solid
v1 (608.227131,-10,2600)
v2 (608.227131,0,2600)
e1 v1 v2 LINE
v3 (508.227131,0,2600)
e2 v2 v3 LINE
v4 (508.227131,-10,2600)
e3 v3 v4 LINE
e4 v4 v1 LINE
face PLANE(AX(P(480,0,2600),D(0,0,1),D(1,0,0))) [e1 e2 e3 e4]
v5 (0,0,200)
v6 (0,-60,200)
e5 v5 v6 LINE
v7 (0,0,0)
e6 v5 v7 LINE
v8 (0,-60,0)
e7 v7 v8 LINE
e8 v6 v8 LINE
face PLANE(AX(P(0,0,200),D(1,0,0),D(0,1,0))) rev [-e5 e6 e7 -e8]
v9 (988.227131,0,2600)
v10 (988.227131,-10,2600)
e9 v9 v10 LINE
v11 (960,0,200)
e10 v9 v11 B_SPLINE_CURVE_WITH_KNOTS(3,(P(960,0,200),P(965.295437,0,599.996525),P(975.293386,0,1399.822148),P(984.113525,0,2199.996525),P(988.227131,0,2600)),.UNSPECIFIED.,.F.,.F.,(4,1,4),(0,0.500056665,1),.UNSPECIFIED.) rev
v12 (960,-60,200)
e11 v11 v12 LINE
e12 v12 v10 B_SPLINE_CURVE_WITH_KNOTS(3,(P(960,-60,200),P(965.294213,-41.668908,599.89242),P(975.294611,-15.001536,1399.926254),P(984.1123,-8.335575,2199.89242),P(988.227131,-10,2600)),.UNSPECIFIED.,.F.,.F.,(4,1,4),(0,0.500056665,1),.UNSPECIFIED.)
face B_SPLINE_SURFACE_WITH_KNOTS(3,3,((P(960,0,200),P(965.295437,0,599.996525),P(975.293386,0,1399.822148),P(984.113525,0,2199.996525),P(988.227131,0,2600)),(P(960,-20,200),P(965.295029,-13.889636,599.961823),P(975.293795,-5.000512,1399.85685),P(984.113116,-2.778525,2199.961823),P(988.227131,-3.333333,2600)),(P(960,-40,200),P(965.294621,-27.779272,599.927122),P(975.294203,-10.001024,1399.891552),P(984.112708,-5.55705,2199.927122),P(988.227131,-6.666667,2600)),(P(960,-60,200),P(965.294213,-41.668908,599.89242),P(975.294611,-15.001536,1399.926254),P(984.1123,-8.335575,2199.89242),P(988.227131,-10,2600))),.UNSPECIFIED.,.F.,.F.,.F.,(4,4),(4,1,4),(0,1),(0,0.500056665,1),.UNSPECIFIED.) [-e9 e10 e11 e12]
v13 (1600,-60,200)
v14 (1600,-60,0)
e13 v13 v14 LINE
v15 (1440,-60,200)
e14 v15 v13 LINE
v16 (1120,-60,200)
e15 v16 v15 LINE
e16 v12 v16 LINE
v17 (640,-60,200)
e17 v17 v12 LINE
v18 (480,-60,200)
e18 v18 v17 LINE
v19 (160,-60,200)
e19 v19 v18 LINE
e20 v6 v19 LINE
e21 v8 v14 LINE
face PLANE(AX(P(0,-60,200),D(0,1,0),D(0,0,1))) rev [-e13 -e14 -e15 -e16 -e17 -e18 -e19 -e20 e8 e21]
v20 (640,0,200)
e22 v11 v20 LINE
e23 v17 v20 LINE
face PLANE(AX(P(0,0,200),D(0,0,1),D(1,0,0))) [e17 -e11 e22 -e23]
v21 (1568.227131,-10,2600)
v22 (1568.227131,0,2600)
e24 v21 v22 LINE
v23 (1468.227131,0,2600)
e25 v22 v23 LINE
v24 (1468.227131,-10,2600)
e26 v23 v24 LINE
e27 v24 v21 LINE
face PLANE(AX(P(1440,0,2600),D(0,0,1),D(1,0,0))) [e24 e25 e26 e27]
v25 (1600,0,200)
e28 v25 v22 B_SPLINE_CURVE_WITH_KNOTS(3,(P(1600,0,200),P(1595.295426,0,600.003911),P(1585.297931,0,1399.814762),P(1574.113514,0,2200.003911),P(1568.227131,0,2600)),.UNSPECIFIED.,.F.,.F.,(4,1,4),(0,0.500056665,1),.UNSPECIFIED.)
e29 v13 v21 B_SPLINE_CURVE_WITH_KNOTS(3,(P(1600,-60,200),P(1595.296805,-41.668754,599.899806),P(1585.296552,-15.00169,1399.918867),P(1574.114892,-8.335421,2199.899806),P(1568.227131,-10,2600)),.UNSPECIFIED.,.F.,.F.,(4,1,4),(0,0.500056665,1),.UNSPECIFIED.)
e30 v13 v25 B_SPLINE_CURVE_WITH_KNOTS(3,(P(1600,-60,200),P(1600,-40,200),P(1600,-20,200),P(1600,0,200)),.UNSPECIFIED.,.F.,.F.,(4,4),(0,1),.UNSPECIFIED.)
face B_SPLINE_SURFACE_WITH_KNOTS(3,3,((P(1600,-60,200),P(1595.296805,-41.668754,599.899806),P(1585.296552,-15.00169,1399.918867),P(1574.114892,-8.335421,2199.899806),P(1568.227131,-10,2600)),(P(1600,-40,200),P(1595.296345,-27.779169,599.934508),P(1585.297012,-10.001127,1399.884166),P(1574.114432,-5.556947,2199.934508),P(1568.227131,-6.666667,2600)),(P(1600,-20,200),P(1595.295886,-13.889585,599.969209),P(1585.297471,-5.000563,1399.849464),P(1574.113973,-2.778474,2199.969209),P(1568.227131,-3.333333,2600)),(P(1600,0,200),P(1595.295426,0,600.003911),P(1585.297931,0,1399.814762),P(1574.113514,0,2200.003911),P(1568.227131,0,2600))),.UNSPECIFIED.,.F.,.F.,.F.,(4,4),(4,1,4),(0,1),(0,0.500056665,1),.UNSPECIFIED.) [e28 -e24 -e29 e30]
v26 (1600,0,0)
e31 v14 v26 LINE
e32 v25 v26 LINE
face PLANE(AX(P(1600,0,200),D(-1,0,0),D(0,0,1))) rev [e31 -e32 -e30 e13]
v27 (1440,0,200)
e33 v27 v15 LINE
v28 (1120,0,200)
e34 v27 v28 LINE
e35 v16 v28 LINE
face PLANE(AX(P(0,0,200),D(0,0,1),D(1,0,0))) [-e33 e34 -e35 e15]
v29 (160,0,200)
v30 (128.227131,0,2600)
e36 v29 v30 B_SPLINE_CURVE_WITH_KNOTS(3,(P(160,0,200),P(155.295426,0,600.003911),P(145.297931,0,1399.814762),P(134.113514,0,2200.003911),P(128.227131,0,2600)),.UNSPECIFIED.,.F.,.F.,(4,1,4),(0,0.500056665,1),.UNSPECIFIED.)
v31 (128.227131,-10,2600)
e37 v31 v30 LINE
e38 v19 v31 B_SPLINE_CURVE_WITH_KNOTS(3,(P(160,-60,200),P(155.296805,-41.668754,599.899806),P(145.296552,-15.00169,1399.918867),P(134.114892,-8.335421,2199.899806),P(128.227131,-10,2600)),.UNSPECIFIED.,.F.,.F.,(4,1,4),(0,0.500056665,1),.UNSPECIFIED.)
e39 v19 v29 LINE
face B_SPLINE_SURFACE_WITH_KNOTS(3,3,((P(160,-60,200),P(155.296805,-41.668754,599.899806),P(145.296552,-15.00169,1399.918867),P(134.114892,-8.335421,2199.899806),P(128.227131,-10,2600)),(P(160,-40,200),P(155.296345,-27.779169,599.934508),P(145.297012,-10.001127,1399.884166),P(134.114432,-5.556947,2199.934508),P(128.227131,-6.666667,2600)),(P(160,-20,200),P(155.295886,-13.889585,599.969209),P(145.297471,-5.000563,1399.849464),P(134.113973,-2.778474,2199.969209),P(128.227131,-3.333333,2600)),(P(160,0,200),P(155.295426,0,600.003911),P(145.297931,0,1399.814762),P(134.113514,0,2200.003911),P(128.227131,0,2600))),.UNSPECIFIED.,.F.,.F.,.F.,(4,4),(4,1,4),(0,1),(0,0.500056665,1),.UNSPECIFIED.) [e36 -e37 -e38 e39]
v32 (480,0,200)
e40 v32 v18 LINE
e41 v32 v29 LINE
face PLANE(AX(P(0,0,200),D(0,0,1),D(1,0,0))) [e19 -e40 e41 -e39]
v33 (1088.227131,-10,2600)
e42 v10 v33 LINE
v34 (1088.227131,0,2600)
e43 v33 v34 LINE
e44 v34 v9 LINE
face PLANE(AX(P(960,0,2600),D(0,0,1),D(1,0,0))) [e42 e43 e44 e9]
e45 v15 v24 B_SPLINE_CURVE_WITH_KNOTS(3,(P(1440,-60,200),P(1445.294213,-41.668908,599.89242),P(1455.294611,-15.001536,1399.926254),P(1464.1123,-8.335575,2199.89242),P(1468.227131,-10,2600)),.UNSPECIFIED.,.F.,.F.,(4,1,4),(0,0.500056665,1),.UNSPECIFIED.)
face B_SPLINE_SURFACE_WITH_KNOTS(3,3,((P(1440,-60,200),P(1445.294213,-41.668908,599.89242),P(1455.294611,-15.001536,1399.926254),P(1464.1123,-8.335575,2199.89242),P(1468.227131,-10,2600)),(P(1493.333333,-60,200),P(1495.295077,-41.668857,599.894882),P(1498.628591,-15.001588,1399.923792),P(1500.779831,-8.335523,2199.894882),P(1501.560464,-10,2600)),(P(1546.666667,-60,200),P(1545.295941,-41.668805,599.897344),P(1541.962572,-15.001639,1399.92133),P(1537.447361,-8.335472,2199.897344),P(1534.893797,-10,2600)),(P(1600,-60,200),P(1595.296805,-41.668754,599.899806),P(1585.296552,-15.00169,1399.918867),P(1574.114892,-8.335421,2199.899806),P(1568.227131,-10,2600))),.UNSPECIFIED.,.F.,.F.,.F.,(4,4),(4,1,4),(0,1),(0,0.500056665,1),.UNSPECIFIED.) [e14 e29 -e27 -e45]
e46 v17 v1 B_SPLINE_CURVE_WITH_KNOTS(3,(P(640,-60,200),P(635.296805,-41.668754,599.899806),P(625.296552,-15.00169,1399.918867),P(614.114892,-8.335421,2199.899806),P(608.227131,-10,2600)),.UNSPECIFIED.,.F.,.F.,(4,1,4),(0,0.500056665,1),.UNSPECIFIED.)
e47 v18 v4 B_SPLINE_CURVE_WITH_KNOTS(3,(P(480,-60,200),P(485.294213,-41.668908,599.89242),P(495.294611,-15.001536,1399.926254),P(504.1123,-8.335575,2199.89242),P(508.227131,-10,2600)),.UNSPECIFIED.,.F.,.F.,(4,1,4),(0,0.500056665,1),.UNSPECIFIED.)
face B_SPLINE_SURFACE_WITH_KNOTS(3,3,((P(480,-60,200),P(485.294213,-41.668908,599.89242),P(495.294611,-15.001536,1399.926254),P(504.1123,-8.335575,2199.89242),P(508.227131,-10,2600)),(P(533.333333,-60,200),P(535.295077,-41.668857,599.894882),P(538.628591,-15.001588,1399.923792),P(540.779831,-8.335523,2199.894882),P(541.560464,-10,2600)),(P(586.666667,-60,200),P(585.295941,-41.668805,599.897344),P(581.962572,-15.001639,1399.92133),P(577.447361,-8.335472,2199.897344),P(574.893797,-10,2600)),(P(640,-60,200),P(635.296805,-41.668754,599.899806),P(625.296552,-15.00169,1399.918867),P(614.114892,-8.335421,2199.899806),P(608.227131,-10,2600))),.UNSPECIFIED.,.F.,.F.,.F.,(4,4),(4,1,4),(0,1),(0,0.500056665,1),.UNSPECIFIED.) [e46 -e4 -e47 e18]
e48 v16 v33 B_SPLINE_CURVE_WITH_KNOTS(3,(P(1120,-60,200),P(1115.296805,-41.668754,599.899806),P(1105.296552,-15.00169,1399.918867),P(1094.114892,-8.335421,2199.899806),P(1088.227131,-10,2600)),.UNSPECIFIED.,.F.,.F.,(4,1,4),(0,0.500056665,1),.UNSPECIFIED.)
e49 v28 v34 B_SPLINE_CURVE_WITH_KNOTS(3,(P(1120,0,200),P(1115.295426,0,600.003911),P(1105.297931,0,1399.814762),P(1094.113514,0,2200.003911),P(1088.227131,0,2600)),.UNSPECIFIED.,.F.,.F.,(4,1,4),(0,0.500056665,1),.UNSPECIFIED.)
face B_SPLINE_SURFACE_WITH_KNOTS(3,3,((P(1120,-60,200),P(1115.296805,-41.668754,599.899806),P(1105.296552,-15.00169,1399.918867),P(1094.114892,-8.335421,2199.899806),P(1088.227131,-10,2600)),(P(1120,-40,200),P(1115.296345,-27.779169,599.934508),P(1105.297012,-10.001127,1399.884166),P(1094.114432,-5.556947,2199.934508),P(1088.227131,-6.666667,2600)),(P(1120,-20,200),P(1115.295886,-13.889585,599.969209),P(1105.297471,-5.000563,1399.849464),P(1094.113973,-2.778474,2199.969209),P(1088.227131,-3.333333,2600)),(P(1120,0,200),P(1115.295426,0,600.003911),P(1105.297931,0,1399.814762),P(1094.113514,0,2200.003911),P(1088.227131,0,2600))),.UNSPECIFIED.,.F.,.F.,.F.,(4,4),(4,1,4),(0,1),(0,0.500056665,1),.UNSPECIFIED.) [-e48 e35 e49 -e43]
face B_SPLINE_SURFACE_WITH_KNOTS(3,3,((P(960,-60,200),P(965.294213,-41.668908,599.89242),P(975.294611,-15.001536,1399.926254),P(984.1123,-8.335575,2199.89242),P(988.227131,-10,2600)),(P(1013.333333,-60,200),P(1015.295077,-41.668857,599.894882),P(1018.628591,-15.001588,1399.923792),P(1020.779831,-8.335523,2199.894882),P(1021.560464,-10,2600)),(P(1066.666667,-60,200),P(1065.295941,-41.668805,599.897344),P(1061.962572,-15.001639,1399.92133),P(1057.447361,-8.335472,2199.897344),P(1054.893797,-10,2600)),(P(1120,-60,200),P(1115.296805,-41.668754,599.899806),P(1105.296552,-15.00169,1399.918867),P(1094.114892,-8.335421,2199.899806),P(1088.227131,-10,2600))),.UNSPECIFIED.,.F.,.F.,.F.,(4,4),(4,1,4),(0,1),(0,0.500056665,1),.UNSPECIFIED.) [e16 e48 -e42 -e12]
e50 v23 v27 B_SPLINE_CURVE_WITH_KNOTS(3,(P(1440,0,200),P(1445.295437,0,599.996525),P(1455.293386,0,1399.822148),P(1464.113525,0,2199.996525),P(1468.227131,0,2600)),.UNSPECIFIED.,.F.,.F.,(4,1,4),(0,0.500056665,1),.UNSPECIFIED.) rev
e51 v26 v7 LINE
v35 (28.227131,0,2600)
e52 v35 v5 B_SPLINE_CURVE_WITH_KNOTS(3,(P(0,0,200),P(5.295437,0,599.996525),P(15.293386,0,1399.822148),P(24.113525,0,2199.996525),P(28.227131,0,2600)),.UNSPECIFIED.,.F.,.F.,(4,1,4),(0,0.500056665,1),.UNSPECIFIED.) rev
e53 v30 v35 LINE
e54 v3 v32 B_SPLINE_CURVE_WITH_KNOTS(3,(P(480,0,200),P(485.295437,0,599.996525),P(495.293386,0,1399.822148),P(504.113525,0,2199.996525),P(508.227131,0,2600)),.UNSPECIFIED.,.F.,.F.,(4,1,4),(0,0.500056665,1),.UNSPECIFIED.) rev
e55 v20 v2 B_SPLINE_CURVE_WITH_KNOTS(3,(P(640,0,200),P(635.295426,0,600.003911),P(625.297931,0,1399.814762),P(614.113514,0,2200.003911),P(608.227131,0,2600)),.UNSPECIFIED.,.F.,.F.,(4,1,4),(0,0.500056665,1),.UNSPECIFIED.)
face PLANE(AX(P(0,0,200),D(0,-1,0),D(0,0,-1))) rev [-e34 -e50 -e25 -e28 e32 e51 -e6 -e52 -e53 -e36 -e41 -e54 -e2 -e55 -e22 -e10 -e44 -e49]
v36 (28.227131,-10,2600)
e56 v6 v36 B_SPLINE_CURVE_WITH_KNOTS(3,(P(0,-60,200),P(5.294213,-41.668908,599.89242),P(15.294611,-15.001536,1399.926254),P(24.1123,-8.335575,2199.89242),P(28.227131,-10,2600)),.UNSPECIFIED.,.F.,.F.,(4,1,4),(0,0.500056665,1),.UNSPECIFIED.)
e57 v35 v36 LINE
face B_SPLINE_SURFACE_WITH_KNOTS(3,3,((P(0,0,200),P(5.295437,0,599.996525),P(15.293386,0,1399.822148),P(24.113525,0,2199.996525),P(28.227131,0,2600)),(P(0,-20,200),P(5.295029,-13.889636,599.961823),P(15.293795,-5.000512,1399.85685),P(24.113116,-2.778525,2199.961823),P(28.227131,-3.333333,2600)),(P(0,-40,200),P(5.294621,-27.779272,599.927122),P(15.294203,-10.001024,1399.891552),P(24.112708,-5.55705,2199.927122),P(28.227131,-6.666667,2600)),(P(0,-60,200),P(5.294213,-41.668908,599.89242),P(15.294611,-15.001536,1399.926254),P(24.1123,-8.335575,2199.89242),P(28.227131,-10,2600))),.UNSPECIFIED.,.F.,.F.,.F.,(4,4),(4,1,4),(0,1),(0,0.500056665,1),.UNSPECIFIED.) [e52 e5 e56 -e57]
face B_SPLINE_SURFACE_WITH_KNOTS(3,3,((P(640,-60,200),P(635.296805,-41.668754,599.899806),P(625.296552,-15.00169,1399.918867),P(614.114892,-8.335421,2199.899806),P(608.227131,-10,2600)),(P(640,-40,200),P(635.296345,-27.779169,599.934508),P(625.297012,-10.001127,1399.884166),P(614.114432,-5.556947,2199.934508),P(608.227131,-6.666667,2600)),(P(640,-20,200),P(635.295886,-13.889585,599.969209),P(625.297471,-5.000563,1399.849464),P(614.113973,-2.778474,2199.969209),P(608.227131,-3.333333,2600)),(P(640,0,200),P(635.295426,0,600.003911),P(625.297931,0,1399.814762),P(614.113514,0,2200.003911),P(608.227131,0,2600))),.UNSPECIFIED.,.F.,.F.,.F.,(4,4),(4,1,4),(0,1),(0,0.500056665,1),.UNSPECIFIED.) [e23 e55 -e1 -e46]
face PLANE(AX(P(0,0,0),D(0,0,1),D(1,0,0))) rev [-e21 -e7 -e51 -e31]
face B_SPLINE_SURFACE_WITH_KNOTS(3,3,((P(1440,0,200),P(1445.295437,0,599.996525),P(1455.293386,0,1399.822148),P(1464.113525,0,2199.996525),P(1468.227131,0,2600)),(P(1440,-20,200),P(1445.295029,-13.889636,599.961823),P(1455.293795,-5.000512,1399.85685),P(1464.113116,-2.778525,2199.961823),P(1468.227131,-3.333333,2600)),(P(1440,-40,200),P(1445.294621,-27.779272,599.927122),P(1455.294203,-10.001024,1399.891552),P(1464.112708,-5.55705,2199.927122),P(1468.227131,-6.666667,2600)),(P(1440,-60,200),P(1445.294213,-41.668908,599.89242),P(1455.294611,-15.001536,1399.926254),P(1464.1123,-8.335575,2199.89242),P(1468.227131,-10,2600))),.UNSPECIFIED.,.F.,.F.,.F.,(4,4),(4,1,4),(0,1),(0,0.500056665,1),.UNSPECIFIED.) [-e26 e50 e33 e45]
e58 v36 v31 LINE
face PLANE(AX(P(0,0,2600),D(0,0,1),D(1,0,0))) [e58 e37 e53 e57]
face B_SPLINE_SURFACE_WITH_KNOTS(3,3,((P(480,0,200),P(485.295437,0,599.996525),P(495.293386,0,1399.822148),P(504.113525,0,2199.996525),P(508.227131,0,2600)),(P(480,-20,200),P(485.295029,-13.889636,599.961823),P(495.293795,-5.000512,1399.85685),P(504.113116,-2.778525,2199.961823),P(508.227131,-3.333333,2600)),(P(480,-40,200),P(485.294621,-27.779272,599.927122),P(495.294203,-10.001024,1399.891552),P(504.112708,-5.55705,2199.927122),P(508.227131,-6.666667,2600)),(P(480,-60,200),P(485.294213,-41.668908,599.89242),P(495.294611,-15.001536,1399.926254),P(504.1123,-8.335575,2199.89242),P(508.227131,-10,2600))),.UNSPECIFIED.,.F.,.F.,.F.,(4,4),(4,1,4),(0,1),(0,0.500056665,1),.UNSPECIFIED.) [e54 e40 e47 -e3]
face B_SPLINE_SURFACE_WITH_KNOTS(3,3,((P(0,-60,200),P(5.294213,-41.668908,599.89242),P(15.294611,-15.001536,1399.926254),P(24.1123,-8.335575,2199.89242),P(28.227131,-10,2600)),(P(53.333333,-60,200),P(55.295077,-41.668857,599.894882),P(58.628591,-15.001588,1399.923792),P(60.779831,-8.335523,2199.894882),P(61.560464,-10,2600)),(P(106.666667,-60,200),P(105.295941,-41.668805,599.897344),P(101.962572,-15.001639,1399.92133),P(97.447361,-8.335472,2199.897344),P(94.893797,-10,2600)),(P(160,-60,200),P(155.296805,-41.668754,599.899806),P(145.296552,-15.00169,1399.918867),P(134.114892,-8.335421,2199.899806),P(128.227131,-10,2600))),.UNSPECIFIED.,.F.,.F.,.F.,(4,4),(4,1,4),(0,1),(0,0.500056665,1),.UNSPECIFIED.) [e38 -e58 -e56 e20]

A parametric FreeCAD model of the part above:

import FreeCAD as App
import Part
import Sketcher
Q = App.Units.Quantity


def add_polygon(sketch, points):
    """Adds a closed chain of lines whose ends are joined by coincident constraints."""
    first, n = sketch.GeometryCount, len(points)
    for a, b in zip(points, points[1:] + points[:1]):
        sketch.addGeometry(Part.LineSegment(App.Vector(*a, 0), App.Vector(*b, 0)), False)
    for i in range(n):
        sketch.addConstraint(Sketcher.Constraint("Coincident", first + i, 2, first + (i + 1) % n, 1))

doc = App.newDocument("Part")
body = doc.addObject("PartDesign::Body", "Body")

# Sketch on XY plane
sketch1 = body.newObject("Sketcher::SketchObject", "Sketch")
sketch1.AttachmentSupport = (doc.getObject("XY_Plane"), [""])
sketch1.MapMode = "FlatFace"
add_polygon(sketch1, [(0, 0), (0, -60), (1600, -60), (1600, 0)])  # lines 0-3
sketch1.addConstraint([
    Sketcher.Constraint("Vertical", 0),
    Sketcher.Constraint("Horizontal", 1),
    Sketcher.Constraint("Vertical", 2),
    Sketcher.Constraint("Horizontal", 3),
    Sketcher.Constraint("Coincident", 3, 2, -1, 1),
    Sketcher.Constraint("DistanceX", 1, 1, 1, 2, Q("1600 mm")),
    Sketcher.Constraint("DistanceY", 0, 2, 0, 1, Q("60 mm")),
])
pad1 = body.newObject("PartDesign::Pad", "Pad")
pad1.Profile = sketch1
pad1.Length = 200

# Sketch on XY plane
sketch2 = body.newObject("Sketcher::SketchObject", "Sketch001")
sketch2.AttachmentSupport = (doc.getObject("XY_Plane"), [""])
sketch2.MapMode = "FlatFace"
sketch2.AttachmentOffset = App.Placement(App.Vector(0, 0, 200), App.Rotation())
add_polygon(sketch2, [(0, 0), (0, -60), (160, -60), (160, 0)])  # lines 0-3
sketch2.addConstraint([
    Sketcher.Constraint("Vertical", 0),
    Sketcher.Constraint("Horizontal", 1),
    Sketcher.Constraint("Vertical", 2),
    Sketcher.Constraint("Horizontal", 3),
    Sketcher.Constraint("Coincident", 3, 2, -1, 1),
    Sketcher.Constraint("DistanceX", 1, 1, 1, 2, Q("160 mm")),
    Sketcher.Constraint("DistanceY", 0, 2, 0, 1, Q("60 mm")),
])

# Sketch on XY plane
sketch3 = body.newObject("Sketcher::SketchObject", "Sketch002")
sketch3.AttachmentSupport = (doc.getObject("XY_Plane"), [""])
sketch3.MapMode = "FlatFace"
sketch3.AttachmentOffset = App.Placement(App.Vector(0, 0, 1400), App.Rotation())
add_polygon(sketch3, [(15, 0), (15, -20), (145, -20), (145, 0)])  # lines 0-3
sketch3.addConstraint([
    Sketcher.Constraint("Vertical", 0),
    Sketcher.Constraint("Horizontal", 1),
    Sketcher.Constraint("Vertical", 2),
    Sketcher.Constraint("Horizontal", 3),
    Sketcher.Constraint("PointOnObject", 2, 2, -1),
    Sketcher.Constraint("DistanceX", 1, 1, 1, 2, Q("130 mm")),
    Sketcher.Constraint("DistanceY", 0, 2, 0, 1, Q("20 mm")),
    Sketcher.Constraint("DistanceX", -1, 1, 0, 2, Q("15 mm")),
])

# Sketch on XY plane
sketch4 = body.newObject("Sketcher::SketchObject", "Sketch003")
sketch4.AttachmentSupport = (doc.getObject("XY_Plane"), [""])
sketch4.MapMode = "FlatFace"
sketch4.AttachmentOffset = App.Placement(App.Vector(0, 0, 2600), App.Rotation())
add_polygon(sketch4, [(28, 0), (28, -10), (128, -10), (128, 0)])  # lines 0-3
sketch4.addConstraint([
    Sketcher.Constraint("Vertical", 0),
    Sketcher.Constraint("Horizontal", 1),
    Sketcher.Constraint("Vertical", 2),
    Sketcher.Constraint("Horizontal", 3),
    Sketcher.Constraint("PointOnObject", 2, 2, -1),
    Sketcher.Constraint("DistanceX", 1, 1, 1, 2, Q("100 mm")),
    Sketcher.Constraint("DistanceY", 0, 2, 0, 1, Q("10 mm")),
    Sketcher.Constraint("DistanceX", -1, 1, 0, 2, Q("28.227131 mm")),
])

additiveloft = body.newObject("PartDesign::AdditiveLoft", "AdditiveLoft")
additiveloft.Profile = sketch2
additiveloft.Sections = [sketch3, sketch4]
doc.recompute()

linearpattern = body.newObject("PartDesign::LinearPattern", "LinearPattern")
linearpattern.Originals = [additiveloft]
linearpattern.Direction = (doc.getObject("X_Axis"), [""])
linearpattern.Mode = "offset"
linearpattern.Offset = 480
linearpattern.Occurrences = 4
body.Tip = linearpattern

doc.recompute()
